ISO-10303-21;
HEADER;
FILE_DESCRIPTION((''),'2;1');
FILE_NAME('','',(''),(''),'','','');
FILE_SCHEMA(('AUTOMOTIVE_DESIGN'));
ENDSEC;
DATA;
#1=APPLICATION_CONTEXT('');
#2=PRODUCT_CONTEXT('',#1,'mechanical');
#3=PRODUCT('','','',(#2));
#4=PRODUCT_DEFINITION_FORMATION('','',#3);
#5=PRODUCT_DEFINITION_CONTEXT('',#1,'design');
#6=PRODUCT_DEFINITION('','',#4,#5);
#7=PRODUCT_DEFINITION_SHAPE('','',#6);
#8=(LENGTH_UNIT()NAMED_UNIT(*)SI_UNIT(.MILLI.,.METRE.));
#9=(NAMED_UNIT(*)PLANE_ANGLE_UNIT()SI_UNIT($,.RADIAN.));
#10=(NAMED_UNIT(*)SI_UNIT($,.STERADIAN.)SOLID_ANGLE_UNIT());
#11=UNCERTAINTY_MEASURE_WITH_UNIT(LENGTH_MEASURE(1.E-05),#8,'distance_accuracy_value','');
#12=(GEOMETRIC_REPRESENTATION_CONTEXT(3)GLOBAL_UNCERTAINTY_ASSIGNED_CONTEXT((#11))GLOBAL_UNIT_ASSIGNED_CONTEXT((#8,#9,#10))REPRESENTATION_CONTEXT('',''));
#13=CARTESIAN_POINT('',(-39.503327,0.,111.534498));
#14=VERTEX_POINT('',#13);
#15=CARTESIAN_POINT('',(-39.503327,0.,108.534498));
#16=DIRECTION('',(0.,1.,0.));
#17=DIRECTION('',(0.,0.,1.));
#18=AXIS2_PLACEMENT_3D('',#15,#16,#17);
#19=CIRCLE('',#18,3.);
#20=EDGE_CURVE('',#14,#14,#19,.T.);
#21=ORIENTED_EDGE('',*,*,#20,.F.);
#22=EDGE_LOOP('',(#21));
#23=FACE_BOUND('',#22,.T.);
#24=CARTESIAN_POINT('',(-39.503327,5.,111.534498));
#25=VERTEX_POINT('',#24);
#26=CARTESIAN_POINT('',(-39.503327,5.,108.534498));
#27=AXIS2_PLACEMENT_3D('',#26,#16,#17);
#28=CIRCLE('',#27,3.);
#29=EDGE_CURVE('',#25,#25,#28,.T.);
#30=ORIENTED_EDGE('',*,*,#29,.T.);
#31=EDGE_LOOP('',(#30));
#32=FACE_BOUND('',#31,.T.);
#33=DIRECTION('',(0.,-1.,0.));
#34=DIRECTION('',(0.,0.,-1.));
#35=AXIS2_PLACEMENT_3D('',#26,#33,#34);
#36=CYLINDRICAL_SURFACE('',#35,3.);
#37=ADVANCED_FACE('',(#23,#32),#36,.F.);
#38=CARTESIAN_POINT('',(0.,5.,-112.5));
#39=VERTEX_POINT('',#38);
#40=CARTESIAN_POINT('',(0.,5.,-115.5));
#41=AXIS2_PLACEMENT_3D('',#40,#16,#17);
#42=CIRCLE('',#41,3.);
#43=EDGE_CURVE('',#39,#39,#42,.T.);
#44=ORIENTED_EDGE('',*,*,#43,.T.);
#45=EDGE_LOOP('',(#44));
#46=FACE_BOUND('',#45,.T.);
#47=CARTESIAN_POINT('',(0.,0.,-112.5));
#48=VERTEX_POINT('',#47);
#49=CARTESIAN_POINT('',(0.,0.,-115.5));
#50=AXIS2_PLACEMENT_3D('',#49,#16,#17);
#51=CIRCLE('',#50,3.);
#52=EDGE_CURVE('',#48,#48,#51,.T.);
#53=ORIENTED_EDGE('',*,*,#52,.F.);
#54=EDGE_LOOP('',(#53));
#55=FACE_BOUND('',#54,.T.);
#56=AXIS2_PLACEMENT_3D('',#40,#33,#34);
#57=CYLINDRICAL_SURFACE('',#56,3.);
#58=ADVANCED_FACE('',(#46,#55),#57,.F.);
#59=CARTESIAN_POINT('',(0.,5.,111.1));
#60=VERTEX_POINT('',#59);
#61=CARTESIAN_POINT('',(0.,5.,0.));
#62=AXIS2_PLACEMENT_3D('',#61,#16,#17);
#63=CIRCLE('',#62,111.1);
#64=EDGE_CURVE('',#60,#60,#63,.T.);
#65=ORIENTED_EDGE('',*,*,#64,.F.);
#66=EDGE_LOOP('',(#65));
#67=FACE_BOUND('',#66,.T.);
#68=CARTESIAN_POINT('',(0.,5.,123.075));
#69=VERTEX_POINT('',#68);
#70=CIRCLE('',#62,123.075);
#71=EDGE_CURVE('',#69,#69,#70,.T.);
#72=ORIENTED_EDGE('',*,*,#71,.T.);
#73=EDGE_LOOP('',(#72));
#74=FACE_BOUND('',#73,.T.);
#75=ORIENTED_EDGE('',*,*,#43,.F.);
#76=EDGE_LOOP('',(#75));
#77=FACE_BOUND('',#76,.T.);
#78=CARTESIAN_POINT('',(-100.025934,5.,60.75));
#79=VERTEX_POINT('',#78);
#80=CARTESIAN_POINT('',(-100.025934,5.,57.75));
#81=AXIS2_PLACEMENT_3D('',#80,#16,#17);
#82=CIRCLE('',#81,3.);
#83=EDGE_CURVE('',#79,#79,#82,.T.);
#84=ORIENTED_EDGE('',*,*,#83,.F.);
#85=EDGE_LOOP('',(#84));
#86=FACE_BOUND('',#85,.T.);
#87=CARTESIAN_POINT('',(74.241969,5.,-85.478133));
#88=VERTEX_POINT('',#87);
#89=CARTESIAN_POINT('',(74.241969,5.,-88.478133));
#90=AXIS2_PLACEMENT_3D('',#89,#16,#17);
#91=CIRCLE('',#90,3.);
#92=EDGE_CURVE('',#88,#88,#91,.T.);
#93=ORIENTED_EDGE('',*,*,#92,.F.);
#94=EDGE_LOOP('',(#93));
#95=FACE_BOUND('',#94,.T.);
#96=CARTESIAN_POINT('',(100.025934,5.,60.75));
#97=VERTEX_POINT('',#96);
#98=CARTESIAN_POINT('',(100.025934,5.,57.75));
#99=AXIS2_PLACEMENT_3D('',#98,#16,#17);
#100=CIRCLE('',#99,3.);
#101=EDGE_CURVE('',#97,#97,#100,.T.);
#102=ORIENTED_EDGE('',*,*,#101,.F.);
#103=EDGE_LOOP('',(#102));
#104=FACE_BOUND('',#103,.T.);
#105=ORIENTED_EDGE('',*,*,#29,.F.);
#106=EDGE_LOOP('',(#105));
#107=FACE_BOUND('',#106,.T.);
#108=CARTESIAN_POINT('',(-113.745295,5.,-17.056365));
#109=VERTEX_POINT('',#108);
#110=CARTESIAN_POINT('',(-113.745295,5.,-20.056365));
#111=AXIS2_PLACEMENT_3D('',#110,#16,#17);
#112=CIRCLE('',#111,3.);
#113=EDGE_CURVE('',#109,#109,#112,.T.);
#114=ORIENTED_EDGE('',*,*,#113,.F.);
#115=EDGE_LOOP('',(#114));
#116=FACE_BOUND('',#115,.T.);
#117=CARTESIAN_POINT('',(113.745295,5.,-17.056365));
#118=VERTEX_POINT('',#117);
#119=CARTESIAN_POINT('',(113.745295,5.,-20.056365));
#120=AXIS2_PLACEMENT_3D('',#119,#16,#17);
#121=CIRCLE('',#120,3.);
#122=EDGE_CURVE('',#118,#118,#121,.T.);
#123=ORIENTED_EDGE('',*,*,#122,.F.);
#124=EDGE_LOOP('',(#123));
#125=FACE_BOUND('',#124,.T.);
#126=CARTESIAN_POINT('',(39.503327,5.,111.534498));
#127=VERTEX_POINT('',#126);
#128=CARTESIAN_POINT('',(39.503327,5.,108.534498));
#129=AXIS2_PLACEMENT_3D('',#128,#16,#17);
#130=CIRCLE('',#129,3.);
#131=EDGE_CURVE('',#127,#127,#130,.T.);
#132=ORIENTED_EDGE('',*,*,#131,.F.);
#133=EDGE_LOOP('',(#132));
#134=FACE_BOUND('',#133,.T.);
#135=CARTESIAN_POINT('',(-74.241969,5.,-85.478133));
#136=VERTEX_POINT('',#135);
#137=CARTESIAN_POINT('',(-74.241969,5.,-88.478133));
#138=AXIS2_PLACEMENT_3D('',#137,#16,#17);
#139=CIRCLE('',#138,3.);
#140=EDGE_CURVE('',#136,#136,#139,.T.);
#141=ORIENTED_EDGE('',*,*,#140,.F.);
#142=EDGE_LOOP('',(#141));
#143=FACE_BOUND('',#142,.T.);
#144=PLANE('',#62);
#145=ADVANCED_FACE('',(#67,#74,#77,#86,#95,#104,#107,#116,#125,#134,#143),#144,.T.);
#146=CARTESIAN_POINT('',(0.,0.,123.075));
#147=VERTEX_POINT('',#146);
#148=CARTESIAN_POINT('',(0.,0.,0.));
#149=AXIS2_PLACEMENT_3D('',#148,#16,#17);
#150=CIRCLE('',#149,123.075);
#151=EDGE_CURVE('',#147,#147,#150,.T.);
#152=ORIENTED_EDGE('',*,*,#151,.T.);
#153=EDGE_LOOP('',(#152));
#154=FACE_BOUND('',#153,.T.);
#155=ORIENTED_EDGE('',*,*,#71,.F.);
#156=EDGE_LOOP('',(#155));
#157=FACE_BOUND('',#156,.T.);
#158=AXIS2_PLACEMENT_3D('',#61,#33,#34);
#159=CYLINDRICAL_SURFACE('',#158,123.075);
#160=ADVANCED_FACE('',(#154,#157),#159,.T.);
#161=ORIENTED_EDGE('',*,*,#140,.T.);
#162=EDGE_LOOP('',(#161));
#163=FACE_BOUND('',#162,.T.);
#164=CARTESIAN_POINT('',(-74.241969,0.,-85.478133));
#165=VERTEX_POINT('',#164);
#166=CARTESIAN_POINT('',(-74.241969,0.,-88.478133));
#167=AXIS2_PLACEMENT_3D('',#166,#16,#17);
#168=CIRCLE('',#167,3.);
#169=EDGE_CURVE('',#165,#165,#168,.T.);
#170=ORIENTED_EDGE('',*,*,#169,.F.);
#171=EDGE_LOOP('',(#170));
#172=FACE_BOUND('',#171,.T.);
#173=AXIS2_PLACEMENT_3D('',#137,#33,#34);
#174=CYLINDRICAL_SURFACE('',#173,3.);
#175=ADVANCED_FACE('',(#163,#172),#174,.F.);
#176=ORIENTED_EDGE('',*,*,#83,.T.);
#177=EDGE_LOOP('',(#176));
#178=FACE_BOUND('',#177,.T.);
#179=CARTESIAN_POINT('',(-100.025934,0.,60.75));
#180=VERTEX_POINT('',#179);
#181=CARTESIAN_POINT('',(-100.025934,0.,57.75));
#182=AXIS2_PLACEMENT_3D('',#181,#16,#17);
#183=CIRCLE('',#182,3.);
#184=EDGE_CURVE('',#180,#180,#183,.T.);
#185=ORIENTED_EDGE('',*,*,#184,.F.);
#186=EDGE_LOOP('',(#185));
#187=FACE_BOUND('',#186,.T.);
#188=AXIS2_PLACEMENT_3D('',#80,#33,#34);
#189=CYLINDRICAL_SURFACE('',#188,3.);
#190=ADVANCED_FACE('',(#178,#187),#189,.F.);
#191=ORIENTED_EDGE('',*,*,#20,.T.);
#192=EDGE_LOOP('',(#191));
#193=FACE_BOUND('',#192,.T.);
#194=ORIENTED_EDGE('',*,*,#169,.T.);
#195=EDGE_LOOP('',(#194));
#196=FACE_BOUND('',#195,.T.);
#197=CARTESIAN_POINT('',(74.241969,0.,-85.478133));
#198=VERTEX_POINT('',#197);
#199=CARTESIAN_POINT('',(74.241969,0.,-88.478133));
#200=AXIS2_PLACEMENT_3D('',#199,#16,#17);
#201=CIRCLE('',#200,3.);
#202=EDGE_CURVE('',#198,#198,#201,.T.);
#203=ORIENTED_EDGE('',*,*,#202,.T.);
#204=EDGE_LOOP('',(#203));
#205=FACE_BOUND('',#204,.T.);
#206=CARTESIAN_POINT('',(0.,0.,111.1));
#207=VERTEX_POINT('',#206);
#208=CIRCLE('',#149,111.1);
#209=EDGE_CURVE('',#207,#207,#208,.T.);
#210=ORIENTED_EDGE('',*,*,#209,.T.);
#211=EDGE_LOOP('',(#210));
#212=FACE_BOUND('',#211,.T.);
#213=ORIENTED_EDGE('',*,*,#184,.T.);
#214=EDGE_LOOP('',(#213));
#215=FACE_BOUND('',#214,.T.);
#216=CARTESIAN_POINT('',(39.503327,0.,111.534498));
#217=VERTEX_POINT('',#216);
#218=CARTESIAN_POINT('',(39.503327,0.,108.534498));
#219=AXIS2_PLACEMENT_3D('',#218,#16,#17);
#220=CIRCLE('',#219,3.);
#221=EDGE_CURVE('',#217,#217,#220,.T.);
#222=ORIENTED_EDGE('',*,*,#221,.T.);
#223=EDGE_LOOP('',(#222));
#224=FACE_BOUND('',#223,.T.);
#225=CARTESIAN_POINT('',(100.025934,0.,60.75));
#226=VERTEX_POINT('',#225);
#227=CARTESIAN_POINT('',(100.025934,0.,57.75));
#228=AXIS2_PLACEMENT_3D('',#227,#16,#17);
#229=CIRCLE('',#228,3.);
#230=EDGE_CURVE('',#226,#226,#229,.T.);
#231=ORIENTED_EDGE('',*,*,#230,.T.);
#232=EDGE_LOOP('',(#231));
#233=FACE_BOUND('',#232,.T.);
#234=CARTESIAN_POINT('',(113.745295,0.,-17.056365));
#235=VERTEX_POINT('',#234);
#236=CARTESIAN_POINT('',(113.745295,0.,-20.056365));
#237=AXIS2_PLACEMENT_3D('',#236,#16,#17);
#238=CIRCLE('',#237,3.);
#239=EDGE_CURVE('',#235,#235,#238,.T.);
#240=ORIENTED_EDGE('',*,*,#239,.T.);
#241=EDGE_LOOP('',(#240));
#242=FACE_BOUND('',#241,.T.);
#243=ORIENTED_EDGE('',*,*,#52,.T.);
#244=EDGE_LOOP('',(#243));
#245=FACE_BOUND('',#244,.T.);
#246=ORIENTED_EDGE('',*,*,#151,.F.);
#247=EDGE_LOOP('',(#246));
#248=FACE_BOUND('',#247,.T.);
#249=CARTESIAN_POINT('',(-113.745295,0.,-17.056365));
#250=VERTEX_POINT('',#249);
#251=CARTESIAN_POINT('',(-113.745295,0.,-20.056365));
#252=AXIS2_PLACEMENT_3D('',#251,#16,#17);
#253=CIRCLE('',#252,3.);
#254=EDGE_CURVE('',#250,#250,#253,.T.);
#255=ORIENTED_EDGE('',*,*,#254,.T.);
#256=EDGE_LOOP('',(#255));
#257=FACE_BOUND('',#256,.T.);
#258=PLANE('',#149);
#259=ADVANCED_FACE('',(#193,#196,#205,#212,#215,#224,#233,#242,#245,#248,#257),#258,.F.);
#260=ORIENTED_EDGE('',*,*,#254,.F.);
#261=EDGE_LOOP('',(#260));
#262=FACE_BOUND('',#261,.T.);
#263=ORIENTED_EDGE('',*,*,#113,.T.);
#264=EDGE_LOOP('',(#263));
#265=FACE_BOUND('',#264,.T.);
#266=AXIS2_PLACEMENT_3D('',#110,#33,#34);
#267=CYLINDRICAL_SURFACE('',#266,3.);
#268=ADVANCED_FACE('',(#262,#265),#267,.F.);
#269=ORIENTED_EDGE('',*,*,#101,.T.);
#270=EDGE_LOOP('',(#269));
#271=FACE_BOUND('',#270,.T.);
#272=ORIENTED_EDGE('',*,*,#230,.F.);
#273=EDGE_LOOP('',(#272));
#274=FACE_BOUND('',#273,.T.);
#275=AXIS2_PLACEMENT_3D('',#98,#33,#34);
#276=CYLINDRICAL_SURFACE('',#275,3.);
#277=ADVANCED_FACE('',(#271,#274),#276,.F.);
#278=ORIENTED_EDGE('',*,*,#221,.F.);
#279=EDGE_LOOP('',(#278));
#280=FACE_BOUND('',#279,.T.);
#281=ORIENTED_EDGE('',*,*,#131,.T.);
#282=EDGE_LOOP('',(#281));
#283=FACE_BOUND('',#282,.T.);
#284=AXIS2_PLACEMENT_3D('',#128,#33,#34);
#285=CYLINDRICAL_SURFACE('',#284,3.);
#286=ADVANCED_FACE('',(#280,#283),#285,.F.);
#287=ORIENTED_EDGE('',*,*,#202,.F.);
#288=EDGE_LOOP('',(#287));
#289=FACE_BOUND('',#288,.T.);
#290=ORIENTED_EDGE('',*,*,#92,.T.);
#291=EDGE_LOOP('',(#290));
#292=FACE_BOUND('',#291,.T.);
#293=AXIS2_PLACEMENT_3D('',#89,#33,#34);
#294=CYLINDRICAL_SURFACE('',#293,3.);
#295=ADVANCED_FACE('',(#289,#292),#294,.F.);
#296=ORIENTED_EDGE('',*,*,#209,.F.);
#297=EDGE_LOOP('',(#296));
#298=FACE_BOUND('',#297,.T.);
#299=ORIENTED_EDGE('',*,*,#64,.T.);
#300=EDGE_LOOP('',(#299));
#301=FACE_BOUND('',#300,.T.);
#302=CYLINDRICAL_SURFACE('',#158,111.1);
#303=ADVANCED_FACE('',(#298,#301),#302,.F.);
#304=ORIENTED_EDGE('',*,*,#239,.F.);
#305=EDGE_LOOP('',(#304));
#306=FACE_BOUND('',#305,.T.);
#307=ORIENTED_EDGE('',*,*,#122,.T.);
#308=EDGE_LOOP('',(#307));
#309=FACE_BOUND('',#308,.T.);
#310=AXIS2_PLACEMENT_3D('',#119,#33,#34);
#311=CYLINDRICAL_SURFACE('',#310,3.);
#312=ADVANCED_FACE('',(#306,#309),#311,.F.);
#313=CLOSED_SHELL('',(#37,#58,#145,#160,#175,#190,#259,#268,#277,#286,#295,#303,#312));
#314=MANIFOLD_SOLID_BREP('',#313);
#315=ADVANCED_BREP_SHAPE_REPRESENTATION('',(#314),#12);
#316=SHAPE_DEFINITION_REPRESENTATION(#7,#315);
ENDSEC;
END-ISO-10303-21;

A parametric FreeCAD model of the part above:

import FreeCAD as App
import Part
import Sketcher

V = App.Vector

doc = App.newDocument("Part")
params = doc.addObject("Spreadsheet::Sheet", "Params")
for row, (alias, value) in enumerate([
    ("sketch1_diameter", "6 mm"),
    ("sketch1_diameter2", "222.2 mm"),
    ("sketch1_diameter3", "246.15 mm"),
    ("pad1_length", "5 mm"),
], start=1):
    params.set(f"A{row}", alias)
    params.set(f"B{row}", "=" + value)
    params.setAlias(f"B{row}", alias)

body = doc.addObject("PartDesign::Body", "Body")

# Sketch on XZ plane
sketch1 = doc.addObject("Sketcher::SketchObject", "Sketch")
body.addObject(sketch1)
sketch1.AttachmentSupport = (doc.XZ_Plane, [""])
sketch1.MapMode = "FlatFace"
sketch1.addGeometry(Part.Circle(V(0, 0, 0), V(0, 0, 1), 123.1), False)
sketch1.addGeometry(Part.Circle(V(-74.2, -88.5, 0), V(0, 0, 1), 3), False)
sketch1.addGeometry(Part.Circle(V(-113.7, -20.1, 0), V(0, 0, 1), 3), False)
sketch1.addGeometry(Part.Circle(V(0, -115.5, 0), V(0, 0, 1), 3), False)
sketch1.addGeometry(Part.Circle(V(-100, 57.8, 0), V(0, 0, 1), 3), False)
sketch1.addGeometry(Part.Circle(V(0, 0, 0), V(0, 0, 1), 111.1), False)
sketch1.addGeometry(Part.Circle(V(-39.5, 108.5, 0), V(0, 0, 1), 3), False)
sketch1.addGeometry(Part.Circle(V(74.2, -88.5, 0), V(0, 0, 1), 3), False)
sketch1.addGeometry(Part.Circle(V(113.7, -20.1, 0), V(0, 0, 1), 3), False)
sketch1.addGeometry(Part.Circle(V(39.5, 108.5, 0), V(0, 0, 1), 3), False)
sketch1.addGeometry(Part.Circle(V(100, 57.8, 0), V(0, 0, 1), 3), False)
sketch1.addConstraint(Sketcher.Constraint("Coincident", 0, 3, -1, 1))
sketch1.addConstraint(Sketcher.Constraint("Coincident", 5, 3, -1, 1))
sketch1.addConstraint(Sketcher.Constraint("Equal", 1, 2))
sketch1.addConstraint(Sketcher.Constraint("Equal", 2, 3))
sketch1.addConstraint(Sketcher.Constraint("Equal", 3, 4))
sketch1.addConstraint(Sketcher.Constraint("Equal", 4, 6))
sketch1.addConstraint(Sketcher.Constraint("Equal", 6, 7))
sketch1.addConstraint(Sketcher.Constraint("Equal", 7, 8))
sketch1.addConstraint(Sketcher.Constraint("Equal", 8, 9))
sketch1.addConstraint(Sketcher.Constraint("Equal", 9, 10))
sketch1.addConstraint(Sketcher.Constraint("Symmetric", 1, 3, 7, 3, -2))
sketch1.addConstraint(Sketcher.Constraint("Symmetric", 2, 3, 8, 3, -2))
sketch1.addConstraint(Sketcher.Constraint("Symmetric", 6, 3, 9, 3, -2))
sketch1.addConstraint(Sketcher.Constraint("Symmetric", 4, 3, 10, 3, -2))
sketch1.addConstraint(Sketcher.Constraint("PointOnObject", 3, 3, -2))
sketch1.addConstraint(Sketcher.Constraint("Diameter", 1, 6.0))
sketch1.addConstraint(Sketcher.Constraint("Diameter", 5, 222.2))
sketch1.addConstraint(Sketcher.Constraint("Diameter", 0, 246.15))
sketch1.addConstraint(Sketcher.Constraint("DistanceY", 3, 3, -1, 1, 115.5))
sketch1.addConstraint(Sketcher.Constraint("DistanceY", -1, 1, 4, 3, 57.75))
sketch1.addConstraint(Sketcher.Constraint("DistanceX", 1, 3, -1, 1, 74.241969))
sketch1.addConstraint(Sketcher.Constraint("DistanceY", 1, 3, 2, 3, 68.421769))
sketch1.addConstraint(Sketcher.Constraint("DistanceX", 2, 3, 4, 3, 13.719361))
sketch1.addConstraint(Sketcher.Constraint("DistanceX", 2, 3, 6, 3, 74.241969))
sketch1.addConstraint(Sketcher.Constraint("DistanceY", 1, 3, 6, 3, 197.012631))
sketch1.addConstraint(Sketcher.Constraint("DistanceX", 4, 3, 9, 3, 139.529261))
sketch1.addConstraint(Sketcher.Constraint("DistanceY", 1, 3, -1, 1, 88.478133))
sketch1.setExpression("Constraints[15]", "Params.sketch1_diameter")
sketch1.setExpression("Constraints[16]", "Params.sketch1_diameter2")
sketch1.setExpression("Constraints[17]", "Params.sketch1_diameter3")
pad1 = doc.addObject("PartDesign::Pad", "Pad")
body.addObject(pad1)
pad1.Profile = sketch1
pad1.setExpression("Length", "Params.pad1_length")
pad1.Reversed = True

doc.recompute()
